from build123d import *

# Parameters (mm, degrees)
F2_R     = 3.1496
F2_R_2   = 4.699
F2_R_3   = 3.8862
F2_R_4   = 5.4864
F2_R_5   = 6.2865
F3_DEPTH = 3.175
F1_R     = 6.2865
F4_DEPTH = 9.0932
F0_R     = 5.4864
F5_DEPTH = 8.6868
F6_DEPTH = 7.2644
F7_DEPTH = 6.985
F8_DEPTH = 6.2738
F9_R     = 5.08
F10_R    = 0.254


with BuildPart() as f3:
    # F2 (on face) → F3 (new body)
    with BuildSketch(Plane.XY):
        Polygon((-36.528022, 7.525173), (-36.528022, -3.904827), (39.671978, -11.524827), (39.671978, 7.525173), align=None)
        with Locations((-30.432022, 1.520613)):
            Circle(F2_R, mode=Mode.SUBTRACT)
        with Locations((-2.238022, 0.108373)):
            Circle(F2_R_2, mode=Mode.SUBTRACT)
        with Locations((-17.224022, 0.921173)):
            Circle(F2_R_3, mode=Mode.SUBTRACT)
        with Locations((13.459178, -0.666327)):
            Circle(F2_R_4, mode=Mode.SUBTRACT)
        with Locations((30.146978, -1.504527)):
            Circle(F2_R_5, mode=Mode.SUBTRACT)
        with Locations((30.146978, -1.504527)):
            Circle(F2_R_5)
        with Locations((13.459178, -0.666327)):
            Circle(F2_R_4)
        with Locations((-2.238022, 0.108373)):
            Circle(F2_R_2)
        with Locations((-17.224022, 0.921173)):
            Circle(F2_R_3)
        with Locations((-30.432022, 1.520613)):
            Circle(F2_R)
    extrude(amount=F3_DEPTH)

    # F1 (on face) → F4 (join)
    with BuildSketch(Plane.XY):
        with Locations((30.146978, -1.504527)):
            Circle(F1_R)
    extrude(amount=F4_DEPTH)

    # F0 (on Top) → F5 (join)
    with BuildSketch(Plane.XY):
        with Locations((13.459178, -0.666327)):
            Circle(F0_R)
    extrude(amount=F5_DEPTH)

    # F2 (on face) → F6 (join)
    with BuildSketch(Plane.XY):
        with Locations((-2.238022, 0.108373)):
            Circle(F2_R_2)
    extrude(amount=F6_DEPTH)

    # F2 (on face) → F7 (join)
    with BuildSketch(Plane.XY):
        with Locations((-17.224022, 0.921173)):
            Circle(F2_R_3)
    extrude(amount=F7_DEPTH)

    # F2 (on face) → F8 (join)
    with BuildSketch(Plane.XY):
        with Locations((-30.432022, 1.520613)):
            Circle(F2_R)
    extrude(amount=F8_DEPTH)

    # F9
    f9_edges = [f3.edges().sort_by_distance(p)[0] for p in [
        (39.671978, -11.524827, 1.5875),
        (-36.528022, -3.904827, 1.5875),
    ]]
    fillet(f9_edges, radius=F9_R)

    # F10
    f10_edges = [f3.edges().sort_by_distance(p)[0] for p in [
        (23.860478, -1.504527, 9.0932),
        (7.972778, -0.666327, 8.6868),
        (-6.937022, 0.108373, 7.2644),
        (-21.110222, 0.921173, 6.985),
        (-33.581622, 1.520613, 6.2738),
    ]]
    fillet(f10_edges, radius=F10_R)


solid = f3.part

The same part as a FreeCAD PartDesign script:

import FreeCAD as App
import Part
import Sketcher

V = App.Vector
Q = App.Units.Quantity


def edges_at(feature, points):
    """Names of the edges that pass closest to the given points."""
    edges = feature.Shape.Edges
    near = lambda p: min(range(len(edges)), key=lambda i: edges[i].distToShape(Part.Vertex(*p))[0])
    return sorted({f"Edge{near(p) + 1}" for p in points})


def add_polygon(sketch, points):
    """Adds a closed chain of lines whose ends are joined by coincident constraints."""
    first, n = sketch.GeometryCount, len(points)
    for a, b in zip(points, points[1:] + points[:1]):
        sketch.addGeometry(Part.LineSegment(App.Vector(*a, 0), App.Vector(*b, 0)), False)
    for i in range(n):
        sketch.addConstraint(Sketcher.Constraint("Coincident", first + i, 2, first + (i + 1) % n, 1))

doc = App.newDocument("Part")
body = doc.addObject("PartDesign::Body", "Body")

# Sketch on XY plane
sketch1 = body.newObject("Sketcher::SketchObject", "Sketch")
sketch1.AttachmentSupport = (doc.getObject("XY_Plane"), [""])
sketch1.MapMode = "FlatFace"
add_polygon(sketch1, [(-36.528022, 7.525173), (-36.528022, -3.904827), (39.671978, -11.524827), (39.671978, 7.525173)])  # lines 0-3
sketch1.addConstraint([
    Sketcher.Constraint("Vertical", 0),
    Sketcher.Constraint("Vertical", 2),
    Sketcher.Constraint("Horizontal", 3),
    Sketcher.Constraint("DistanceX", 3, 2, 3, 1, Q("3 in")),
    Sketcher.Constraint("DistanceY", 0, 2, 0, 1, Q("0.45 in")),
    Sketcher.Constraint("DistanceY", 2, 1, 2, 2, Q("0.75 in")),
    Sketcher.Constraint("DistanceX", -1, 1, 1, 2, 39.671978),
    Sketcher.Constraint("DistanceY", 0, 2, -1, 1, 3.904827),
])
pad1 = body.newObject("PartDesign::Pad", "Pad")
pad1.Profile = sketch1
pad1.Length = Q("0.125 in")

# Sketch on XY plane
sketch2 = body.newObject("Sketcher::SketchObject", "Sketch001")
sketch2.AttachmentSupport = (doc.getObject("XY_Plane"), [""])
sketch2.MapMode = "FlatFace"
sketch2.addGeometry(Part.Circle(V(30.146978, -1.504527, 0), V(0, 0, 1), 6.2865), False)
sketch2.addConstraint([
    Sketcher.Constraint("Diameter", 0, Q("0.495 in")),
    Sketcher.Constraint("DistanceX", -1, 1, 0, 3, 30.146978),
    Sketcher.Constraint("DistanceY", 0, 3, -1, 1, 1.504527),
])
pad2 = body.newObject("PartDesign::Pad", "Pad001")
pad2.Profile = sketch2
pad2.Length = Q("0.358 in")

# Sketch on XY plane
sketch3 = body.newObject("Sketcher::SketchObject", "Sketch002")
sketch3.AttachmentSupport = (doc.getObject("XY_Plane"), [""])
sketch3.MapMode = "FlatFace"
sketch3.addGeometry(Part.Circle(V(13.459178, -0.666327, 0), V(0, 0, 1), 5.4864), False)
sketch3.addConstraint([
    Sketcher.Constraint("Diameter", 0, Q("0.432 in")),
    Sketcher.Constraint("DistanceX", -1, 1, 0, 3, 13.459178),
    Sketcher.Constraint("DistanceY", 0, 3, -1, 1, 0.666327),
])
pad3 = body.newObject("PartDesign::Pad", "Pad002")
pad3.Profile = sketch3
pad3.Length = Q("0.342 in")

# Sketch on XY plane
sketch4 = body.newObject("Sketcher::SketchObject", "Sketch003")
sketch4.AttachmentSupport = (doc.getObject("XY_Plane"), [""])
sketch4.MapMode = "FlatFace"
sketch4.addGeometry(Part.Circle(V(-2.238022, 0.108373, 0), V(0, 0, 1), 4.699), False)
sketch4.addConstraint([
    Sketcher.Constraint("Diameter", 0, Q("0.37 in")),
    Sketcher.Constraint("DistanceX", 0, 3, -1, 1, 2.238022),
    Sketcher.Constraint("DistanceY", -1, 1, 0, 3, 0.108373),
])
pad4 = body.newObject("PartDesign::Pad", "Pad003")
pad4.Profile = sketch4
pad4.Length = Q("0.286 in")

# Sketch on XY plane
sketch5 = body.newObject("Sketcher::SketchObject", "Sketch004")
sketch5.AttachmentSupport = (doc.getObject("XY_Plane"), [""])
sketch5.MapMode = "FlatFace"
sketch5.addGeometry(Part.Circle(V(-17.224022, 0.921173, 0), V(0, 0, 1), 3.8862), False)
sketch5.addConstraint([
    Sketcher.Constraint("Diameter", 0, Q("0.306 in")),
    Sketcher.Constraint("DistanceX", 0, 3, -1, 1, 17.224022),
    Sketcher.Constraint("DistanceY", -1, 1, 0, 3, 0.921173),
])
pad5 = body.newObject("PartDesign::Pad", "Pad004")
pad5.Profile = sketch5
pad5.Length = Q("0.275 in")

# Sketch on XY plane
sketch6 = body.newObject("Sketcher::SketchObject", "Sketch005")
sketch6.AttachmentSupport = (doc.getObject("XY_Plane"), [""])
sketch6.MapMode = "FlatFace"
sketch6.addGeometry(Part.Circle(V(-30.432022, 1.520613, 0), V(0, 0, 1), 3.1496), False)
sketch6.addConstraint([
    Sketcher.Constraint("Diameter", 0, Q("0.248 in")),
    Sketcher.Constraint("DistanceX", 0, 3, -1, 1, 30.432022),
    Sketcher.Constraint("DistanceY", -1, 1, 0, 3, 1.520613),
])
pad6 = body.newObject("PartDesign::Pad", "Pad005")
pad6.Profile = sketch6
pad6.Length = Q("0.247 in")
doc.recompute()

fillet = body.newObject("PartDesign::Fillet", "Fillet")
fillet.Base = (pad6, edges_at(pad6, [(39.672, -11.525, 1.587), (-36.528, -3.905, 1.587)]))
fillet.Radius = Q("0.2 in")
doc.recompute()

fillet2 = body.newObject("PartDesign::Fillet", "Fillet001")
fillet2.Base = (fillet, edges_at(fillet, [
    (23.86, -1.505, 9.093),
    (7.973, -0.666, 8.687),
    (-6.937, 0.108, 7.264),
    (-21.11, 0.921, 6.985),
    (-33.582, 1.521, 6.274),
]))
fillet2.Radius = Q("0.01 in")

doc.recompute()
